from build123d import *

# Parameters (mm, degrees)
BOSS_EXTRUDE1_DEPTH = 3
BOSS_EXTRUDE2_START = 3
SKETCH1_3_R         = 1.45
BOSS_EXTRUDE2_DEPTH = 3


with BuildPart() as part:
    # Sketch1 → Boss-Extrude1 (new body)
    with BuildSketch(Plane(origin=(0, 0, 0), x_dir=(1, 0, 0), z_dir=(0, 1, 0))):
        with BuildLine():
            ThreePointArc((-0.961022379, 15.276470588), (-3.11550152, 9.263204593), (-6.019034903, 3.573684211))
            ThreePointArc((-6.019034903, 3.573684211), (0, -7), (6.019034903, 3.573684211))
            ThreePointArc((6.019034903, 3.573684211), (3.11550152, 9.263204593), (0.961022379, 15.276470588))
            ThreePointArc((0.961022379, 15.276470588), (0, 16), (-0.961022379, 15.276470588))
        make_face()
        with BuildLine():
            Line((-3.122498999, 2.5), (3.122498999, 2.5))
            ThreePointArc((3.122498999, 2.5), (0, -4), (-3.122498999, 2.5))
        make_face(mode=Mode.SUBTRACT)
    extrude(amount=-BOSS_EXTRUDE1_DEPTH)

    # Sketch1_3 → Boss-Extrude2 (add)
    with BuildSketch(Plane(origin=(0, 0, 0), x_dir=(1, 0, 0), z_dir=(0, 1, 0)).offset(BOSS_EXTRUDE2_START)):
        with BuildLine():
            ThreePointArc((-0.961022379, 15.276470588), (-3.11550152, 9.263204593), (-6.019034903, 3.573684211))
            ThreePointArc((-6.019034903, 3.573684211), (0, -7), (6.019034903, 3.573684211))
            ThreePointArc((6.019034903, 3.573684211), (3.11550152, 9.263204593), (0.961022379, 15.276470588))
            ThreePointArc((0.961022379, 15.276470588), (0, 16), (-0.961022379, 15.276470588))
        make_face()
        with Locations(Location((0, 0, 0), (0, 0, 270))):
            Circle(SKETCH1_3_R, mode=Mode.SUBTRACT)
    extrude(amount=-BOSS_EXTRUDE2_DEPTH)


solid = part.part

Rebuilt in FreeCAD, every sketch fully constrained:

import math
import FreeCAD as App
import Part
import Sketcher
from FreeCAD import Vector

doc = App.newDocument("Part")
body = doc.addObject("PartDesign::Body", "Body")

# Sketch on XZ plane
sketch1 = body.newObject("Sketcher::SketchObject", "Sketch")
sketch1.AttachmentSupport = (doc.getObject("XZ_Plane"), [""])
sketch1.MapMode = "FlatFace"
sketch1.addGeometry(Part.ArcOfCircle(Part.Circle(Vector(-49, -29.1, 0), Vector(0, 0, 1), 50), math.radians(16.05), math.radians(30.7)), False)
sketch1.addGeometry(Part.ArcOfCircle(Part.Circle(Vector(0, 0, 0), Vector(0, 0, 1), 7), math.radians(-31), math.radians(211)), False)
sketch1.addGeometry(Part.ArcOfCircle(Part.Circle(Vector(49, -29.1, 0), Vector(0, 0, 1), 50), math.radians(149.3), math.radians(163.95)), False)
sketch1.addGeometry(Part.ArcOfCircle(Part.Circle(Vector(0, -15, 0), Vector(0, 0, 1), 1), math.radians(-164), math.radians(-16)), False)
sketch1.addGeometry(Part.ArcOfCircle(Part.Circle(Vector(0, 0, 0), Vector(0, 0, 1), 4), math.radians(-39), math.radians(219)), False)
sketch1.addGeometry(Part.LineSegment(Vector(-3.1, -2.5, 0), Vector(3.1, -2.5, 0)), False)
sketch1.addConstraint(Sketcher.Constraint("Tangent", 0, 2, 1, 2))
sketch1.addConstraint(Sketcher.Constraint("Tangent", 1, 1, 2, 1))
sketch1.addConstraint(Sketcher.Constraint("Tangent", 2, 2, 3, 2))
sketch1.addConstraint(Sketcher.Constraint("Tangent", 3, 1, 0, 1))
sketch1.addConstraint(Sketcher.Constraint("Coincident", 4, 1, 5, 2))
sketch1.addConstraint(Sketcher.Constraint("Coincident", 5, 1, 4, 2))
sketch1.addConstraint(Sketcher.Constraint("Horizontal", 5))
sketch1.addConstraint(Sketcher.Constraint("Coincident", 1, 3, -1, 1))
sketch1.addConstraint(Sketcher.Constraint("Coincident", 4, 3, -1, 1))
sketch1.addConstraint(Sketcher.Constraint("Equal", 0, 2))
sketch1.addConstraint(Sketcher.Constraint("PointOnObject", 3, 3, -2))
sketch1.addConstraint(Sketcher.Constraint("Radius", 0, 50.0))
sketch1.addConstraint(Sketcher.Constraint("Radius", 1, 7.0))
sketch1.addConstraint(Sketcher.Constraint("Radius", 3, 1.0))
sketch1.addConstraint(Sketcher.Constraint("Radius", 4, 4.0))
sketch1.addConstraint(Sketcher.Constraint("DistanceY", 3, 3, -1, 1, 15.0))
sketch1.addConstraint(Sketcher.Constraint("DistanceY", 4, 1, -1, 1, 2.5))
pad1 = body.newObject("PartDesign::Pad", "Pad")
pad1.Profile = sketch1
pad1.Length = 3

# Sketch on XZ plane
sketch2 = body.newObject("Sketcher::SketchObject", "Sketch001")
sketch2.AttachmentSupport = (doc.getObject("XZ_Plane"), [""])
sketch2.MapMode = "FlatFace"
sketch2.AttachmentOffset = App.Placement(Vector(0, 0, -3), App.Rotation())
sketch2.addGeometry(Part.ArcOfCircle(Part.Circle(Vector(-49, -29.1, 0), Vector(0, 0, 1), 50), math.radians(16.05), math.radians(30.7)), False)
sketch2.addGeometry(Part.ArcOfCircle(Part.Circle(Vector(0, 0, 0), Vector(0, 0, 1), 7), math.radians(-31), math.radians(211)), False)
sketch2.addGeometry(Part.ArcOfCircle(Part.Circle(Vector(49, -29.1, 0), Vector(0, 0, 1), 50), math.radians(149.3), math.radians(163.95)), False)
sketch2.addGeometry(Part.ArcOfCircle(Part.Circle(Vector(0, -15, 0), Vector(0, 0, 1), 1), math.radians(-164), math.radians(-16)), False)
sketch2.addGeometry(Part.Circle(Vector(0, 0, 0), Vector(0, 0, 1), 1.4), False)
sketch2.addConstraint(Sketcher.Constraint("Tangent", 0, 2, 1, 2))
sketch2.addConstraint(Sketcher.Constraint("Tangent", 1, 1, 2, 1))
sketch2.addConstraint(Sketcher.Constraint("Tangent", 2, 2, 3, 2))
sketch2.addConstraint(Sketcher.Constraint("Tangent", 3, 1, 0, 1))
sketch2.addConstraint(Sketcher.Constraint("Coincident", 1, 3, -1, 1))
sketch2.addConstraint(Sketcher.Constraint("Coincident", 4, 3, -1, 1))
sketch2.addConstraint(Sketcher.Constraint("Equal", 0, 2))
sketch2.addConstraint(Sketcher.Constraint("PointOnObject", 3, 3, -2))
sketch2.addConstraint(Sketcher.Constraint("Radius", 0, 50.0))
sketch2.addConstraint(Sketcher.Constraint("Radius", 1, 7.0))
sketch2.addConstraint(Sketcher.Constraint("Radius", 3, 1.0))
sketch2.addConstraint(Sketcher.Constraint("Diameter", 4, 2.9))
sketch2.addConstraint(Sketcher.Constraint("DistanceY", 3, 3, -1, 1, 15.0))
pad2 = body.newObject("PartDesign::Pad", "Pad001")
pad2.Profile = sketch2
pad2.Length = 3

doc.recompute()
